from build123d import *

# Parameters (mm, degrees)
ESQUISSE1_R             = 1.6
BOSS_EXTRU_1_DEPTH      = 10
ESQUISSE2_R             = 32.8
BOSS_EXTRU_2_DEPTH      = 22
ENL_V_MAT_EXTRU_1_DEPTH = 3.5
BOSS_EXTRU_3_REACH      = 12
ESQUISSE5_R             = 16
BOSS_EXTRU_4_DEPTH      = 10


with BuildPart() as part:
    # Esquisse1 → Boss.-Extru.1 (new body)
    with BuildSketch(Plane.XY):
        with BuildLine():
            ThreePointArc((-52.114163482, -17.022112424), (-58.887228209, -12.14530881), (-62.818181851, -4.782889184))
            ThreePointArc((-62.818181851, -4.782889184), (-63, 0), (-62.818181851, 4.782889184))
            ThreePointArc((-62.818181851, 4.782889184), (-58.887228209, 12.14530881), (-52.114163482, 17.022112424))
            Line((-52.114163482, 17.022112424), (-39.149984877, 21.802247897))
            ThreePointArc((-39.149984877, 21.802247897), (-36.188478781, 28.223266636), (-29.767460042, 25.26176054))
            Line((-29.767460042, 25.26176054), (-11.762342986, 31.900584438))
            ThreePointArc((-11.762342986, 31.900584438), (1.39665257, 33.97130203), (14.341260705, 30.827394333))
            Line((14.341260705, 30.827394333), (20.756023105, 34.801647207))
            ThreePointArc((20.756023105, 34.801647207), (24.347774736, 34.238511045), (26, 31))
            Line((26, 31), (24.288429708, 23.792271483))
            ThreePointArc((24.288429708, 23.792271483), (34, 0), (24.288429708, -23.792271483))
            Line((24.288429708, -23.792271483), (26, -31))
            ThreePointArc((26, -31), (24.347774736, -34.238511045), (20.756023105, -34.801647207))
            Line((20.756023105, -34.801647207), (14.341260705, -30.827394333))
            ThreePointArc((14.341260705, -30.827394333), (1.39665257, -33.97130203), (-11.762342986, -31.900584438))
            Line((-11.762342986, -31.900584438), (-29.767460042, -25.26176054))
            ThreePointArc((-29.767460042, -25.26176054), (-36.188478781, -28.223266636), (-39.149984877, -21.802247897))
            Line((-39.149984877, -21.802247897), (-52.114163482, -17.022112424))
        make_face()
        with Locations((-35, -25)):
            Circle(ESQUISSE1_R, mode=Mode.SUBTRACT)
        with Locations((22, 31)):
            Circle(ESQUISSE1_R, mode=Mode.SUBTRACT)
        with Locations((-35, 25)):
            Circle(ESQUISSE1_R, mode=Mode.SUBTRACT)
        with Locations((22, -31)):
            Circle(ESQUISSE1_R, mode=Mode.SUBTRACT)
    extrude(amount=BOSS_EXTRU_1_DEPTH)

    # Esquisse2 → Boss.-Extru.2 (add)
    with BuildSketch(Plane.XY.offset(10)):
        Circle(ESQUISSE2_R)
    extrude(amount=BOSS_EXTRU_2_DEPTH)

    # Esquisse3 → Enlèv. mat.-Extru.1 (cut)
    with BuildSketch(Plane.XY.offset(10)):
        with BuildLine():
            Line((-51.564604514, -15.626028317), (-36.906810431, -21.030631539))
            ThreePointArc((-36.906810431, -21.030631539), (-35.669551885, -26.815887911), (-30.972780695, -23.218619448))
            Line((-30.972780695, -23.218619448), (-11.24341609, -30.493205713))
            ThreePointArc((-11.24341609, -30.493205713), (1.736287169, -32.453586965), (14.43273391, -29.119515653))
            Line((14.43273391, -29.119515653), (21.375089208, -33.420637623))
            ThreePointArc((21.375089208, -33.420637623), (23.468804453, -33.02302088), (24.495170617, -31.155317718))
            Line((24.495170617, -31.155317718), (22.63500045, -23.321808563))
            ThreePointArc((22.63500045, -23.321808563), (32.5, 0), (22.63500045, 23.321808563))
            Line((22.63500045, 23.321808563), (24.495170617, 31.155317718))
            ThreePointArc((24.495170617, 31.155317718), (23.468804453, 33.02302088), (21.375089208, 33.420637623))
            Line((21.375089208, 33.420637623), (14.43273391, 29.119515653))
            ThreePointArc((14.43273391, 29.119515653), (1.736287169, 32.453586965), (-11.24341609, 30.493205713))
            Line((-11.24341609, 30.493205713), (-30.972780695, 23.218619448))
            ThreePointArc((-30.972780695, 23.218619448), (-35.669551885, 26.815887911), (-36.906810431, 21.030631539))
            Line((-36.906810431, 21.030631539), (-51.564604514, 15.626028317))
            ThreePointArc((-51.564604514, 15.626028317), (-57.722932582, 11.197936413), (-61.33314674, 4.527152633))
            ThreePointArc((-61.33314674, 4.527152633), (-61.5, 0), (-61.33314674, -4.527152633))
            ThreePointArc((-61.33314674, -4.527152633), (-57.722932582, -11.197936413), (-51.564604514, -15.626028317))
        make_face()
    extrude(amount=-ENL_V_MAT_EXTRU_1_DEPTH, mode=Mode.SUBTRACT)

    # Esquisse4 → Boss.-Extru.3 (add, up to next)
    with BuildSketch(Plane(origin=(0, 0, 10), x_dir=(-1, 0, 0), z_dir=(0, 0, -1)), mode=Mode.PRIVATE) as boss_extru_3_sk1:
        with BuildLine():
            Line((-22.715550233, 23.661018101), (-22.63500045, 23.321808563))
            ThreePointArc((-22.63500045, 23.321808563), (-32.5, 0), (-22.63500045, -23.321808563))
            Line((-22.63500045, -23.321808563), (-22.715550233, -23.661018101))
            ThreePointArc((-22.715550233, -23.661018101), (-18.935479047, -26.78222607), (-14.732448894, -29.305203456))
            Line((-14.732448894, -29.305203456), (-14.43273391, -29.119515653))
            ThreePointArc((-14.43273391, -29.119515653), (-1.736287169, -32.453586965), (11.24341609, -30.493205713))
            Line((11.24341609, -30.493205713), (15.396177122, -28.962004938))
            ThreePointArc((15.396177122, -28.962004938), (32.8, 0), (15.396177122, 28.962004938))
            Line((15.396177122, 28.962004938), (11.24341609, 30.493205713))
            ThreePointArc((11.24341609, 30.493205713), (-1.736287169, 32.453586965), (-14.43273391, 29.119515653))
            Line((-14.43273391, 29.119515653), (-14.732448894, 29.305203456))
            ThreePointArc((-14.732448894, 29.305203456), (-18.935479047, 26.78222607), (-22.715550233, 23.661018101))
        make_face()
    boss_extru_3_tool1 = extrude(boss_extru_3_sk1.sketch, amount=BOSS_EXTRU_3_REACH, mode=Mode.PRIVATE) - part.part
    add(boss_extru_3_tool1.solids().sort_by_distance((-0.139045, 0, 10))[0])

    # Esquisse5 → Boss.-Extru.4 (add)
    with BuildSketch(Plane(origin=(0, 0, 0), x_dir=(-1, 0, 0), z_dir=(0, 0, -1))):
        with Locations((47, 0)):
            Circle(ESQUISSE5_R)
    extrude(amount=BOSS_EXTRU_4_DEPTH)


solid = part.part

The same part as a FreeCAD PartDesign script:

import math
import FreeCAD as App
import Part
import Sketcher

doc = App.newDocument("Part")
body = doc.addObject("PartDesign::Body", "Body")

# Sketch on XY plane
sketch1 = body.newObject("Sketcher::SketchObject", "Sketch")
sketch1.AttachmentSupport = (doc.getObject("XY_Plane"), [""])
sketch1.MapMode = "FlatFace"
sketch1.addGeometry(Part.ArcOfCircle(Part.Circle(App.Vector(-45, 0, 0), App.Vector(0, 0, 1), 18.4), math.radians(-165), math.radians(-113)), False)
sketch1.addGeometry(Part.LineSegment(App.Vector(-52.1, -17, 0), App.Vector(-39.1, -21.8, 0)), False)
sketch1.addGeometry(Part.ArcOfCircle(Part.Circle(App.Vector(-34.5, -23.5, 0), App.Vector(0, 0, 1), 5), math.radians(160), math.radians(340)), False)
sketch1.addGeometry(Part.LineSegment(App.Vector(-29.8, -25.3, 0), App.Vector(-11.8, -31.9, 0)), False)
sketch1.addGeometry(Part.ArcOfCircle(Part.Circle(App.Vector(0, 0, 0), App.Vector(0, 0, 1), 34), math.radians(-110), math.radians(-65)), False)
sketch1.addGeometry(Part.LineSegment(App.Vector(14.3, -30.8, 0), App.Vector(20.8, -34.8, 0)), False)
sketch1.addGeometry(Part.ArcOfCircle(Part.Circle(App.Vector(22, -31, 0), App.Vector(0, 0, 1), 4), math.radians(-108), math.radians(0)), False)
sketch1.addGeometry(Part.LineSegment(App.Vector(26, -31, 0), App.Vector(24.3, -23.8, 0)), False)
sketch1.addGeometry(Part.ArcOfCircle(Part.Circle(App.Vector(0, 0, 0), App.Vector(0, 0, 1), 34), math.radians(-44), math.radians(44)), False)
sketch1.addGeometry(Part.LineSegment(App.Vector(24.3, 23.8, 0), App.Vector(26, 31, 0)), False)
sketch1.addGeometry(Part.ArcOfCircle(Part.Circle(App.Vector(22, 31, 0), App.Vector(0, 0, 1), 4), math.radians(0), math.radians(108)), False)
sketch1.addGeometry(Part.LineSegment(App.Vector(20.8, 34.8, 0), App.Vector(14.3, 30.8, 0)), False)
sketch1.addGeometry(Part.ArcOfCircle(Part.Circle(App.Vector(0, 0, 0), App.Vector(0, 0, 1), 34), math.radians(65), math.radians(110)), False)
sketch1.addGeometry(Part.LineSegment(App.Vector(-11.8, 31.9, 0), App.Vector(-29.8, 25.3, 0)), False)
sketch1.addGeometry(Part.ArcOfCircle(Part.Circle(App.Vector(-34.5, 23.5, 0), App.Vector(0, 0, 1), 5), math.radians(20), math.radians(200)), False)
sketch1.addGeometry(Part.LineSegment(App.Vector(-39.1, 21.8, 0), App.Vector(-52.1, 17, 0)), False)
sketch1.addGeometry(Part.ArcOfCircle(Part.Circle(App.Vector(-45, 0, 0), App.Vector(0, 0, 1), 18.4), math.radians(113), math.radians(165)), False)
sketch1.addGeometry(Part.ArcOfCircle(Part.Circle(App.Vector(0, 0, 0), App.Vector(0, 0, 1), 63), math.radians(175.65), math.radians(184.35)), False)
sketch1.addGeometry(Part.Circle(App.Vector(22, -31, 0), App.Vector(0, 0, 1), 1.6), False)
sketch1.addGeometry(Part.Circle(App.Vector(-35, -25, 0), App.Vector(0, 0, 1), 1.6), False)
sketch1.addGeometry(Part.Circle(App.Vector(22, 31, 0), App.Vector(0, 0, 1), 1.6), False)
sketch1.addGeometry(Part.Circle(App.Vector(-35, 25, 0), App.Vector(0, 0, 1), 1.6), False)
sketch1.addConstraint(Sketcher.Constraint("Coincident", 0, 2, 1, 1))
sketch1.addConstraint(Sketcher.Constraint("Coincident", 1, 2, 2, 1))
sketch1.addConstraint(Sketcher.Constraint("Coincident", 2, 2, 3, 1))
sketch1.addConstraint(Sketcher.Constraint("Tangent", 3, 2, 4, 1))
sketch1.addConstraint(Sketcher.Constraint("Coincident", 4, 2, 5, 1))
sketch1.addConstraint(Sketcher.Constraint("Coincident", 5, 2, 6, 1))
sketch1.addConstraint(Sketcher.Constraint("Coincident", 6, 2, 7, 1))
sketch1.addConstraint(Sketcher.Constraint("Coincident", 7, 2, 8, 1))
sketch1.addConstraint(Sketcher.Constraint("Coincident", 8, 2, 9, 1))
sketch1.addConstraint(Sketcher.Constraint("Coincident", 9, 2, 10, 1))
sketch1.addConstraint(Sketcher.Constraint("Coincident", 10, 2, 11, 1))
sketch1.addConstraint(Sketcher.Constraint("Coincident", 11, 2, 12, 1))
sketch1.addConstraint(Sketcher.Constraint("Tangent", 12, 2, 13, 1))
sketch1.addConstraint(Sketcher.Constraint("Coincident", 13, 2, 14, 1))
sketch1.addConstraint(Sketcher.Constraint("Coincident", 14, 2, 15, 1))
sketch1.addConstraint(Sketcher.Constraint("Coincident", 15, 2, 16, 1))
sketch1.addConstraint(Sketcher.Constraint("Coincident", 16, 2, 17, 1))
sketch1.addConstraint(Sketcher.Constraint("Coincident", 17, 2, 0, 1))
sketch1.addConstraint(Sketcher.Constraint("Coincident", 4, 3, -1, 1))
sketch1.addConstraint(Sketcher.Constraint("Coincident", 8, 3, -1, 1))
sketch1.addConstraint(Sketcher.Constraint("Coincident", 12, 3, -1, 1))
sketch1.addConstraint(Sketcher.Constraint("Coincident", 17, 3, -1, 1))
sketch1.addConstraint(Sketcher.Constraint("Coincident", 16, 3, 0, 3))
sketch1.addConstraint(Sketcher.Constraint("Coincident", 18, 3, 6, 3))
sketch1.addConstraint(Sketcher.Constraint("Coincident", 20, 3, 10, 3))
sketch1.addConstraint(Sketcher.Constraint("Equal", 4, 8))
sketch1.addConstraint(Sketcher.Constraint("Equal", 6, 10))
sketch1.addConstraint(Sketcher.Constraint("Equal", 8, 12))
sketch1.addConstraint(Sketcher.Constraint("Equal", 2, 14))
sketch1.addConstraint(Sketcher.Constraint("Equal", 0, 16))
sketch1.addConstraint(Sketcher.Constraint("Equal", 18, 19))
sketch1.addConstraint(Sketcher.Constraint("Equal", 19, 20))
sketch1.addConstraint(Sketcher.Constraint("Equal", 20, 21))
sketch1.addConstraint(Sketcher.Constraint("Symmetric", 6, 3, 10, 3, -1))
sketch1.addConstraint(Sketcher.Constraint("Symmetric", 2, 3, 14, 3, -1))
sketch1.addConstraint(Sketcher.Constraint("Symmetric", 19, 3, 21, 3, -1))
sketch1.addConstraint(Sketcher.Constraint("Symmetric", 0, 2, 15, 2, -1))
sketch1.addConstraint(Sketcher.Constraint("Parallel", 1, 3))
sketch1.addConstraint(Sketcher.Constraint("Parallel", 13, 15))
sketch1.addConstraint(Sketcher.Constraint("Horizontal", 18, 3, 6, 2))
sketch1.addConstraint(Sketcher.Constraint("Horizontal", 20, 3, 9, 2))
sketch1.addConstraint(Sketcher.Constraint("Vertical", 7, 2, 8, 2))
sketch1.addConstraint(Sketcher.Constraint("Vertical", 5, 2, 10, 2))
sketch1.addConstraint(Sketcher.Constraint("Vertical", 4, 2, 11, 2))
sketch1.addConstraint(Sketcher.Constraint("Vertical", 3, 2, 12, 2))
sketch1.addConstraint(Sketcher.Constraint("Radius", 2, 5.0))
sketch1.addConstraint(Sketcher.Constraint("Radius", 4, 34.0))
sketch1.addConstraint(Sketcher.Constraint("Radius", 6, 4.0))
sketch1.addConstraint(Sketcher.Constraint("Radius", 17, 63.0))
sketch1.addConstraint(Sketcher.Constraint("Diameter", 18, 3.2))
sketch1.addConstraint(Sketcher.Constraint("DistanceX", 0, 3, -1, 1, 45.0))
sketch1.addConstraint(Sketcher.Constraint("DistanceX", -1, 1, 6, 3, 22.0))
sketch1.addConstraint(Sketcher.Constraint("DistanceY", 6, 3, -1, 1, 31.0))
sketch1.addConstraint(Sketcher.Constraint("DistanceX", 19, 3, -1, 1, 35.0))
sketch1.addConstraint(Sketcher.Constraint("DistanceY", 19, 3, -1, 1, 25.0))
sketch1.addConstraint(Sketcher.Constraint("Radius", 0, 18.448947))
sketch1.addConstraint(Sketcher.Constraint("DistanceY", 0, 2, 16, 2, 21.805002))
sketch1.addConstraint(Sketcher.Constraint("Distance", 7, 7.408159))
sketch1.addConstraint(Sketcher.Constraint("DistanceX", 2, 2, -1, 1, 29.76746))
sketch1.addConstraint(Sketcher.Constraint("DistanceY", 2, 2, -1, 1, 25.261761))
sketch1.addConstraint(Sketcher.Constraint("DistanceX", -1, 1, 4, 2, 14.341261))
sketch1.addConstraint(Sketcher.Constraint("DistanceY", 2, 3, 14, 3, 47.064008))
sketch1.addConstraint(Sketcher.Constraint("Distance", 5, 7.546116))
pad1 = body.newObject("PartDesign::Pad", "Pad")
pad1.Profile = sketch1
pad1.Length = 10

# Sketch on XY plane
sketch2 = body.newObject("Sketcher::SketchObject", "Sketch001")
sketch2.AttachmentSupport = (doc.getObject("XY_Plane"), [""])
sketch2.MapMode = "FlatFace"
sketch2.AttachmentOffset = App.Placement(App.Vector(0, 0, 10), App.Rotation())
sketch2.addGeometry(Part.Circle(App.Vector(0, 0, 0), App.Vector(0, 0, 1), 33), False)
sketch2.addConstraint(Sketcher.Constraint("Coincident", 0, 3, -1, 1))
sketch2.addConstraint(Sketcher.Constraint("Diameter", 0, 65.6))
pad2 = body.newObject("PartDesign::Pad", "Pad001")
pad2.Profile = sketch2
pad2.Length = 22

# Sketch on XY plane
sketch3 = body.newObject("Sketcher::SketchObject", "Sketch002")
sketch3.AttachmentSupport = (doc.getObject("XY_Plane"), [""])
sketch3.MapMode = "FlatFace"
sketch3.AttachmentOffset = App.Placement(App.Vector(0, 0, 10), App.Rotation())
sketch3.addGeometry(Part.LineSegment(App.Vector(-51.6, -15.6, 0), App.Vector(-36.9, -21, 0)), False)
sketch3.addGeometry(Part.ArcOfCircle(Part.Circle(App.Vector(-34.5, -23.5, 0), App.Vector(0, 0, 1), 3.5), math.radians(134), math.radians(365)), False)
sketch3.addGeometry(Part.LineSegment(App.Vector(-31, -23.2, 0), App.Vector(-11.2, -30.5, 0)), False)
sketch3.addGeometry(Part.ArcOfCircle(Part.Circle(App.Vector(0, 0, 0), App.Vector(0, 0, 1), 32.5), math.radians(-110), math.radians(-64)), False)
sketch3.addGeometry(Part.LineSegment(App.Vector(14.4, -29.1, 0), App.Vector(21.4, -33.4, 0)), False)
sketch3.addGeometry(Part.ArcOfCircle(Part.Circle(App.Vector(22, -31, 0), App.Vector(0, 0, 1), 2.5), math.radians(-104), math.radians(-4)), False)
sketch3.addGeometry(Part.LineSegment(App.Vector(24.5, -31.2, 0), App.Vector(22.6, -23.3, 0)), False)
sketch3.addGeometry(Part.ArcOfCircle(Part.Circle(App.Vector(0, 0, 0), App.Vector(0, 0, 1), 32.5), math.radians(-46), math.radians(46)), False)
sketch3.addGeometry(Part.LineSegment(App.Vector(22.6, 23.3, 0), App.Vector(24.5, 31.2, 0)), False)
sketch3.addGeometry(Part.ArcOfCircle(Part.Circle(App.Vector(22, 31, 0), App.Vector(0, 0, 1), 2.5), math.radians(4), math.radians(104)), False)
sketch3.addGeometry(Part.LineSegment(App.Vector(21.4, 33.4, 0), App.Vector(14.4, 29.1, 0)), False)
sketch3.addGeometry(Part.ArcOfCircle(Part.Circle(App.Vector(0, 0, 0), App.Vector(0, 0, 1), 32.5), math.radians(64), math.radians(110)), False)
sketch3.addGeometry(Part.LineSegment(App.Vector(-11.2, 30.5, 0), App.Vector(-31, 23.2, 0)), False)
sketch3.addGeometry(Part.ArcOfCircle(Part.Circle(App.Vector(-34.5, 23.5, 0), App.Vector(0, 0, 1), 3.5), math.radians(-5), math.radians(226)), False)
sketch3.addGeometry(Part.LineSegment(App.Vector(-36.9, 21, 0), App.Vector(-51.6, 15.6, 0)), False)
sketch3.addGeometry(Part.ArcOfCircle(Part.Circle(App.Vector(-45, 0, 0), App.Vector(0, 0, 1), 16.9), math.radians(113), math.radians(165)), False)
sketch3.addGeometry(Part.ArcOfCircle(Part.Circle(App.Vector(0, 0, 0), App.Vector(0, 0, 1), 61.5), math.radians(175.78), math.radians(184.22)), False)
sketch3.addGeometry(Part.ArcOfCircle(Part.Circle(App.Vector(-45, 0, 0), App.Vector(0, 0, 1), 16.9), math.radians(-165), math.radians(-113)), False)
sketch3.addConstraint(Sketcher.Constraint("Coincident", 0, 2, 1, 1))
sketch3.addConstraint(Sketcher.Constraint("Coincident", 1, 2, 2, 1))
sketch3.addConstraint(Sketcher.Constraint("Tangent", 2, 2, 3, 1))
sketch3.addConstraint(Sketcher.Constraint("Coincident", 3, 2, 4, 1))
sketch3.addConstraint(Sketcher.Constraint("Coincident", 4, 2, 5, 1))
sketch3.addConstraint(Sketcher.Constraint("Coincident", 5, 2, 6, 1))
sketch3.addConstraint(Sketcher.Constraint("Coincident", 6, 2, 7, 1))
sketch3.addConstraint(Sketcher.Constraint("Coincident", 7, 2, 8, 1))
sketch3.addConstraint(Sketcher.Constraint("Coincident", 8, 2, 9, 1))
sketch3.addConstraint(Sketcher.Constraint("Coincident", 9, 2, 10, 1))
sketch3.addConstraint(Sketcher.Constraint("Coincident", 10, 2, 11, 1))
sketch3.addConstraint(Sketcher.Constraint("Tangent", 11, 2, 12, 1))
sketch3.addConstraint(Sketcher.Constraint("Coincident", 12, 2, 13, 1))
sketch3.addConstraint(Sketcher.Constraint("Coincident", 13, 2, 14, 1))
sketch3.addConstraint(Sketcher.Constraint("Coincident", 14, 2, 15, 1))
sketch3.addConstraint(Sketcher.Constraint("Coincident", 15, 2, 16, 1))
sketch3.addConstraint(Sketcher.Constraint("Coincident", 16, 2, 17, 1))
sketch3.addConstraint(Sketcher.Constraint("Coincident", 17, 2, 0, 1))
sketch3.addConstraint(Sketcher.Constraint("Coincident", 3, 3, -1, 1))
sketch3.addConstraint(Sketcher.Constraint("Coincident", 7, 3, -1, 1))
sketch3.addConstraint(Sketcher.Constraint("Coincident", 11, 3, -1, 1))
sketch3.addConstraint(Sketcher.Constraint("Coincident", 16, 3, -1, 1))
sketch3.addConstraint(Sketcher.Constraint("Coincident", 17, 3, 15, 3))
sketch3.addConstraint(Sketcher.Constraint("Equal", 3, 7))
sketch3.addConstraint(Sketcher.Constraint("Equal", 5, 9))
sketch3.addConstraint(Sketcher.Constraint("Equal", 7, 11))
sketch3.addConstraint(Sketcher.Constraint("Equal", 1, 13))
sketch3.addConstraint(Sketcher.Constraint("Equal", 15, 17))
sketch3.addConstraint(Sketcher.Constraint("Symmetric", 5, 3, 9, 3, -1))
sketch3.addConstraint(Sketcher.Constraint("Symmetric", 1, 3, 13, 3, -1))
sketch3.addConstraint(Sketcher.Constraint("Symmetric", 14, 2, 17, 2, -1))
sketch3.addConstraint(Sketcher.Constraint("Parallel", 0, 2))
sketch3.addConstraint(Sketcher.Constraint("Parallel", 12, 14))
sketch3.addConstraint(Sketcher.Constraint("Vertical", 6, 2, 7, 2))
sketch3.addConstraint(Sketcher.Constraint("Vertical", 5, 2, 8, 2))
sketch3.addConstraint(Sketcher.Constraint("Vertical", 4, 2, 9, 2))
sketch3.addConstraint(Sketcher.Constraint("Vertical", 3, 2, 10, 2))
sketch3.addConstraint(Sketcher.Constraint("Vertical", 2, 2, 11, 2))
sketch3.addConstraint(Sketcher.Constraint("Radius", 1, 3.5))
sketch3.addConstraint(Sketcher.Constraint("Radius", 3, 32.5))
sketch3.addConstraint(Sketcher.Constraint("Radius", 5, 2.5))
sketch3.addConstraint(Sketcher.Constraint("Radius", 16, 61.5))
sketch3.addConstraint(Sketcher.Constraint("DistanceX", -1, 1, 5, 3, 22.0))
sketch3.addConstraint(Sketcher.Constraint("DistanceY", 5, 3, -1, 1, 31.0))
sketch3.addConstraint(Sketcher.Constraint("DistanceX", 15, 3, -1, 1, 45.0))
sketch3.addConstraint(Sketcher.Constraint("DistanceX", -1, 1, 6, 2, 22.635))
sketch3.addConstraint(Sketcher.Constraint("Radius", 15, 16.948947))
sketch3.addConstraint(Sketcher.Constraint("DistanceY", 2, 2, 1, 3, 6.961201))
sketch3.addConstraint(Sketcher.Constraint("Distance", 0, 15.622441))
sketch3.addConstraint(Sketcher.Constraint("Distance", 4, 8.166759))
sketch3.addConstraint(Sketcher.Constraint("Distance", 6, 8.051341))
sketch3.addConstraint(Sketcher.Constraint("DistanceX", 0, 2, -1, 1, 36.90681))
sketch3.addConstraint(Sketcher.Constraint("DistanceY", 0, 2, -1, 1, 21.030632))
sketch3.addConstraint(Sketcher.Constraint("DistanceX", -1, 1, 4, 2, 21.375089))
pocket1 = body.newObject("PartDesign::Pocket", "Pocket")
pocket1.Profile = sketch3
pocket1.Length = 3.5

# Sketch on XY plane
sketch4 = body.newObject("Sketcher::SketchObject", "Sketch003")
sketch4.AttachmentSupport = (doc.getObject("XY_Plane"), [""])
sketch4.MapMode = "FlatFace"
sketch4.AttachmentOffset = App.Placement(App.Vector(0, 0, 10), App.Rotation())
sketch4.addGeometry(Part.LineSegment(App.Vector(22.72, 23.66, 0), App.Vector(22.64, 23.32, 0)), False)
sketch4.addGeometry(Part.ArcOfCircle(Part.Circle(App.Vector(0, 0, 0), App.Vector(0, 0, 1), 32.5), math.radians(-46), math.radians(46)), False)
sketch4.addGeometry(Part.LineSegment(App.Vector(22.64, -23.32, 0), App.Vector(22.72, -23.66, 0)), False)
sketch4.addGeometry(Part.ArcOfCircle(Part.Circle(App.Vector(0, 0, 0), App.Vector(0, 0, 1), 32.8), math.radians(-63.31), math.radians(-46.17)), False)
sketch4.addGeometry(Part.LineSegment(App.Vector(14.73, -29.31, 0), App.Vector(14.43, -29.12, 0)), False)
sketch4.addGeometry(Part.ArcOfCircle(Part.Circle(App.Vector(0, 0, 0), App.Vector(0, 0, 1), 32.5), math.radians(-110), math.radians(-64)), False)
sketch4.addGeometry(Part.LineSegment(App.Vector(-11.24, -30.49, 0), App.Vector(-15.4, -28.96, 0)), False)
sketch4.addGeometry(Part.ArcOfCircle(Part.Circle(App.Vector(0, 0, 0), App.Vector(0, 0, 1), 32.8), math.radians(118), math.radians(242)), False)
sketch4.addGeometry(Part.LineSegment(App.Vector(-15.4, 28.96, 0), App.Vector(-11.24, 30.49, 0)), False)
sketch4.addGeometry(Part.ArcOfCircle(Part.Circle(App.Vector(0, 0, 0), App.Vector(0, 0, 1), 32.5), math.radians(64), math.radians(110)), False)
sketch4.addGeometry(Part.LineSegment(App.Vector(14.43, 29.12, 0), App.Vector(14.73, 29.31, 0)), False)
sketch4.addGeometry(Part.ArcOfCircle(Part.Circle(App.Vector(0, 0, 0), App.Vector(0, 0, 1), 32.8), math.radians(46.17), math.radians(63.31)), False)
sketch4.addConstraint(Sketcher.Constraint("Coincident", 0, 2, 1, 2))
sketch4.addConstraint(Sketcher.Constraint("Coincident", 1, 1, 2, 1))
sketch4.addConstraint(Sketcher.Constraint("Coincident", 2, 2, 3, 2))
sketch4.addConstraint(Sketcher.Constraint("Coincident", 3, 1, 4, 1))
sketch4.addConstraint(Sketcher.Constraint("Coincident", 4, 2, 5, 2))
sketch4.addConstraint(Sketcher.Constraint("Tangent", 5, 1, 6, 1))
sketch4.addConstraint(Sketcher.Constraint("Coincident", 6, 2, 7, 2))
sketch4.addConstraint(Sketcher.Constraint("Coincident", 7, 1, 8, 1))
sketch4.addConstraint(Sketcher.Constraint("Tangent", 8, 2, 9, 2))
sketch4.addConstraint(Sketcher.Constraint("Coincident", 9, 1, 10, 1))
sketch4.addConstraint(Sketcher.Constraint("Coincident", 10, 2, 11, 2))
sketch4.addConstraint(Sketcher.Constraint("Coincident", 11, 1, 0, 1))
sketch4.addConstraint(Sketcher.Constraint("Coincident", 1, 3, -1, 1))
sketch4.addConstraint(Sketcher.Constraint("Coincident", 3, 3, -1, 1))
sketch4.addConstraint(Sketcher.Constraint("Coincident", 5, 3, -1, 1))
sketch4.addConstraint(Sketcher.Constraint("Coincident", 7, 3, -1, 1))
sketch4.addConstraint(Sketcher.Constraint("Coincident", 9, 3, -1, 1))
sketch4.addConstraint(Sketcher.Constraint("Coincident", 11, 3, -1, 1))
sketch4.addConstraint(Sketcher.Constraint("Equal", 1, 5))
sketch4.addConstraint(Sketcher.Constraint("Equal", 3, 7))
sketch4.addConstraint(Sketcher.Constraint("Equal", 5, 9))
sketch4.addConstraint(Sketcher.Constraint("Equal", 7, 11))
sketch4.addConstraint(Sketcher.Constraint("Vertical", 0, 2, 1, 1))
sketch4.addConstraint(Sketcher.Constraint("Vertical", 6, 2, 7, 1))
sketch4.addConstraint(Sketcher.Constraint("Vertical", 4, 2, 9, 1))
sketch4.addConstraint(Sketcher.Constraint("Vertical", 3, 1, 10, 2))
sketch4.addConstraint(Sketcher.Constraint("Vertical", 2, 2, 11, 1))
sketch4.addConstraint(Sketcher.Constraint("Radius", 1, 32.5))
sketch4.addConstraint(Sketcher.Constraint("Radius", 3, 32.8))
sketch4.addConstraint(Sketcher.Constraint("DistanceX", -1, 1, 0, 2, 22.635))
sketch4.addConstraint(Sketcher.Constraint("DistanceX", 3, 1, 2, 2, 7.983101))
sketch4.addConstraint(Sketcher.Constraint("DistanceY", 5, 1, 6, 2, 1.531201))
sketch4.addConstraint(Sketcher.Constraint("DistanceY", 3, 1, 6, 2, 0.343199))
sketch4.addConstraint(Sketcher.Constraint("DistanceX", 5, 1, 4, 2, 25.67615))
pad3 = body.newObject("PartDesign::Pad", "Pad002")
pad3.Profile = sketch4
pad3.Type = "UpToFirst"
pad3.Reversed = True

# Sketch on XY plane
sketch5 = body.newObject("Sketcher::SketchObject", "Sketch004")
sketch5.AttachmentSupport = (doc.getObject("XY_Plane"), [""])
sketch5.MapMode = "FlatFace"
sketch5.addGeometry(Part.Circle(App.Vector(-47, 0, 0), App.Vector(0, 0, 1), 16), False)
sketch5.addConstraint(Sketcher.Constraint("PointOnObject", 0, 3, -1))
sketch5.addConstraint(Sketcher.Constraint("Diameter", 0, 32.0))
sketch5.addConstraint(Sketcher.Constraint("DistanceX", 0, 3, -1, 1, 47.0))
pad4 = body.newObject("PartDesign::Pad", "Pad003")
pad4.Profile = sketch5
pad4.Length = 10
pad4.Reversed = True

doc.recompute()
